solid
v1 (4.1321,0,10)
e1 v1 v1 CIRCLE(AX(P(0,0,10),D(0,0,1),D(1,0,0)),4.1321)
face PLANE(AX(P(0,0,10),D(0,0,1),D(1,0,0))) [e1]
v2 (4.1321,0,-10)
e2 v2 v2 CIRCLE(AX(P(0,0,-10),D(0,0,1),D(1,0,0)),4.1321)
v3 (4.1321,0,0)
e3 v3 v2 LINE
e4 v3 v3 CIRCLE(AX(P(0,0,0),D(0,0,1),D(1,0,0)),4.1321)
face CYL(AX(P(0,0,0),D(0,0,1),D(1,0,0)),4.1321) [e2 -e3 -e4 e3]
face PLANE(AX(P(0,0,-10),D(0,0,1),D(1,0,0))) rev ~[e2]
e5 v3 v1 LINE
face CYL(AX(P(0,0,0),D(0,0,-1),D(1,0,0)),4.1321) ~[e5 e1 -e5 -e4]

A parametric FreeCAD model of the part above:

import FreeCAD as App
import Part
import Sketcher

doc = App.newDocument("Part")
body = doc.addObject("PartDesign::Body", "Body")

# Sketch on XY plane
sketch1 = body.newObject("Sketcher::SketchObject", "Sketch")
sketch1.AttachmentSupport = (doc.getObject("XY_Plane"), [""])
sketch1.MapMode = "FlatFace"
sketch1.addGeometry(Part.Circle(App.Vector(0, 0, 0), App.Vector(0, 0, 1), 4.1), False)
sketch1.addConstraint([
    Sketcher.Constraint("Coincident", 0, 3, -1, 1),
    Sketcher.Constraint("Diameter", 0, 8.2642),
])
pad1 = body.newObject("PartDesign::Pad", "Pad")
pad1.Profile = sketch1
pad1.Length = 20
pad1.Midplane = True

doc.recompute()
